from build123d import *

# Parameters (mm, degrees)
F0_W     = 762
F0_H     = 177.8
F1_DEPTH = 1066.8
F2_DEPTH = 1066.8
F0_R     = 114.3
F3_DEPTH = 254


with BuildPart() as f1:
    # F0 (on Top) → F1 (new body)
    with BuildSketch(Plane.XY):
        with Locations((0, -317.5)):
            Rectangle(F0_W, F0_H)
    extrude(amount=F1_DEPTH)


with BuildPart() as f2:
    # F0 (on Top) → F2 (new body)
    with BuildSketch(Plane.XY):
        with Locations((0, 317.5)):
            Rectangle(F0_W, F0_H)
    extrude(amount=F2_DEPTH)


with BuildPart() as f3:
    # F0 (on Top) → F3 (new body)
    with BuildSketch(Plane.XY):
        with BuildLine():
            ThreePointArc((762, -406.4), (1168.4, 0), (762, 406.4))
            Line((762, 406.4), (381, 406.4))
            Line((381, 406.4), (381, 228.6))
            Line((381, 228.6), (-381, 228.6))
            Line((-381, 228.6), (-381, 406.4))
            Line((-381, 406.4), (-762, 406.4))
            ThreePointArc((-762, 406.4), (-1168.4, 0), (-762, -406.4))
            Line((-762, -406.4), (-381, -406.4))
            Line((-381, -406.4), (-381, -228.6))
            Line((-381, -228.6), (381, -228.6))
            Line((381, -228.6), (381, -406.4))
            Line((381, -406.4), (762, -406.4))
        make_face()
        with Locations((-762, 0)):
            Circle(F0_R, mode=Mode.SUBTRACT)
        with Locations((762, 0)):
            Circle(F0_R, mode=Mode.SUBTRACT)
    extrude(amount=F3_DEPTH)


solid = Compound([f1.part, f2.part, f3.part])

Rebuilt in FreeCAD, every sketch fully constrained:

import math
import FreeCAD as App
import Part
import Sketcher
from FreeCAD import Vector
Q = App.Units.Quantity

doc = App.newDocument("Part")
body = doc.addObject("PartDesign::Body", "Body")

sketch1 = doc.addObject("Sketcher::SketchObject", "Sketch")
body.addObject(sketch1)
sketch1.AttachmentSupport = (doc.XY_Plane, [""])
sketch1.MapMode = "FlatFace"
sketch1.addGeometry([
    Part.LineSegment(Vector(-381, -229, 0), Vector(-381, -406, 0)),
    Part.LineSegment(Vector(-381, -406, 0), Vector(381, -406, 0)),
    Part.LineSegment(Vector(381, -406, 0), Vector(381, -229, 0)),
    Part.LineSegment(Vector(381, -229, 0), Vector(-381, -229, 0)),
], False)
sketch1.addConstraint([
    Sketcher.Constraint("Coincident", 0, 2, 1, 1),
    Sketcher.Constraint("Coincident", 1, 2, 2, 1),
    Sketcher.Constraint("Coincident", 2, 2, 3, 1),
    Sketcher.Constraint("Coincident", 3, 2, 0, 1),
    Sketcher.Constraint("Vertical", 0),
    Sketcher.Constraint("Horizontal", 1),
    Sketcher.Constraint("Vertical", 2),
    Sketcher.Constraint("Horizontal", 3),
    Sketcher.Constraint("DistanceX", 1, 1, 1, 2, Q("30 in")),
    Sketcher.Constraint("DistanceY", 0, 2, 0, 1, Q("7 in")),
    Sketcher.Constraint("DistanceX", 0, 2, -1, 1, Q("15 in")),
    Sketcher.Constraint("DistanceY", 0, 2, -1, 1, Q("16 in")),
])
pad1 = doc.addObject("PartDesign::Pad", "Pad")
body.addObject(pad1)
pad1.Profile = sketch1
pad1.Length = Q("42 in")
body2 = doc.addObject("PartDesign::Body", "Body001")

sketch2 = doc.addObject("Sketcher::SketchObject", "Sketch001")
body2.addObject(sketch2)
sketch2.AttachmentSupport = (doc.getObject("XY_Plane001"), [""])
sketch2.MapMode = "FlatFace"
sketch2.addGeometry([
    Part.LineSegment(Vector(-381, 406, 0), Vector(-381, 229, 0)),
    Part.LineSegment(Vector(-381, 229, 0), Vector(381, 229, 0)),
    Part.LineSegment(Vector(381, 229, 0), Vector(381, 406, 0)),
    Part.LineSegment(Vector(381, 406, 0), Vector(-381, 406, 0)),
], False)
sketch2.addConstraint([
    Sketcher.Constraint("Coincident", 0, 2, 1, 1),
    Sketcher.Constraint("Coincident", 1, 2, 2, 1),
    Sketcher.Constraint("Coincident", 2, 2, 3, 1),
    Sketcher.Constraint("Coincident", 3, 2, 0, 1),
    Sketcher.Constraint("Vertical", 0),
    Sketcher.Constraint("Horizontal", 1),
    Sketcher.Constraint("Vertical", 2),
    Sketcher.Constraint("Horizontal", 3),
    Sketcher.Constraint("DistanceX", 1, 1, 1, 2, Q("30 in")),
    Sketcher.Constraint("DistanceY", 0, 2, 0, 1, Q("7 in")),
    Sketcher.Constraint("DistanceX", 0, 2, -1, 1, Q("15 in")),
    Sketcher.Constraint("DistanceY", -1, 1, 0, 2, Q("9 in")),
])
pad2 = doc.addObject("PartDesign::Pad", "Pad001")
body2.addObject(pad2)
pad2.Profile = sketch2
pad2.Length = Q("42 in")
body3 = doc.addObject("PartDesign::Body", "Body002")

sketch3 = doc.addObject("Sketcher::SketchObject", "Sketch002")
body3.addObject(sketch3)
sketch3.AttachmentSupport = (doc.getObject("XY_Plane002"), [""])
sketch3.MapMode = "FlatFace"
sketch3.addGeometry([
    Part.ArcOfCircle(Part.Circle(Vector(762, 0, 0), Vector(0, 0, 1), 406), math.radians(-90), math.radians(90)),
    Part.LineSegment(Vector(762, 406, 0), Vector(381, 406, 0)),
    Part.LineSegment(Vector(381, 406, 0), Vector(381, 229, 0)),
    Part.LineSegment(Vector(381, 229, 0), Vector(-381, 229, 0)),
    Part.LineSegment(Vector(-381, 229, 0), Vector(-381, 406, 0)),
    Part.LineSegment(Vector(-381, 406, 0), Vector(-762, 406, 0)),
    Part.ArcOfCircle(Part.Circle(Vector(-762, 0, 0), Vector(0, 0, 1), 406), math.radians(90), math.radians(270)),
    Part.LineSegment(Vector(-762, -406, 0), Vector(-381, -406, 0)),
    Part.LineSegment(Vector(-381, -406, 0), Vector(-381, -229, 0)),
    Part.LineSegment(Vector(-381, -229, 0), Vector(381, -229, 0)),
    Part.LineSegment(Vector(381, -229, 0), Vector(381, -406, 0)),
    Part.LineSegment(Vector(381, -406, 0), Vector(762, -406, 0)),
    Part.Circle(Vector(-762, 0, 0), Vector(0, 0, 1), 114),
    Part.Circle(Vector(762, 0, 0), Vector(0, 0, 1), 114),
], False)
sketch3.addConstraint([
    Sketcher.Constraint("Tangent", 0, 2, 1, 1),
    Sketcher.Constraint("Coincident", 1, 2, 2, 1),
    Sketcher.Constraint("Coincident", 2, 2, 3, 1),
    Sketcher.Constraint("Coincident", 3, 2, 4, 1),
    Sketcher.Constraint("Coincident", 4, 2, 5, 1),
    Sketcher.Constraint("Tangent", 5, 2, 6, 1),
    Sketcher.Constraint("Tangent", 6, 2, 7, 1),
    Sketcher.Constraint("Coincident", 7, 2, 8, 1),
    Sketcher.Constraint("Coincident", 8, 2, 9, 1),
    Sketcher.Constraint("Coincident", 9, 2, 10, 1),
    Sketcher.Constraint("Coincident", 10, 2, 11, 1),
    Sketcher.Constraint("Tangent", 11, 2, 0, 1),
    Sketcher.Constraint("Horizontal", 1),
    Sketcher.Constraint("Vertical", 2),
    Sketcher.Constraint("Horizontal", 3),
    Sketcher.Constraint("Vertical", 4),
    Sketcher.Constraint("Horizontal", 5),
    Sketcher.Constraint("Horizontal", 7),
    Sketcher.Constraint("Vertical", 8),
    Sketcher.Constraint("Horizontal", 9),
    Sketcher.Constraint("Vertical", 10),
    Sketcher.Constraint("Horizontal", 11),
    Sketcher.Constraint("Coincident", 12, 3, 6, 3),
    Sketcher.Constraint("Coincident", 13, 3, 0, 3),
    Sketcher.Constraint("Equal", 0, 6),
    Sketcher.Constraint("Equal", 12, 13),
    Sketcher.Constraint("Symmetric", 0, 3, 6, 3, -1, 1),
    Sketcher.Constraint("Symmetric", 2, 2, 8, 2, -1, 1),
    Sketcher.Constraint("Symmetric", 1, 2, 4, 2, -2),
    Sketcher.Constraint("Vertical", 2, 2, 9, 2),
    Sketcher.Constraint("Diameter", 12, Q("9 in")),
    Sketcher.Constraint("Radius", 0, Q("16 in")),
    Sketcher.Constraint("DistanceX", 1, 2, 1, 1, Q("15 in")),
    Sketcher.Constraint("DistanceX", 3, 2, 3, 1, Q("30 in")),
    Sketcher.Constraint("DistanceY", 2, 2, 2, 1, Q("7 in")),
])
pad3 = doc.addObject("PartDesign::Pad", "Pad002")
body3.addObject(pad3)
pad3.Profile = sketch3
pad3.Length = Q("10 in")

doc.recompute()
